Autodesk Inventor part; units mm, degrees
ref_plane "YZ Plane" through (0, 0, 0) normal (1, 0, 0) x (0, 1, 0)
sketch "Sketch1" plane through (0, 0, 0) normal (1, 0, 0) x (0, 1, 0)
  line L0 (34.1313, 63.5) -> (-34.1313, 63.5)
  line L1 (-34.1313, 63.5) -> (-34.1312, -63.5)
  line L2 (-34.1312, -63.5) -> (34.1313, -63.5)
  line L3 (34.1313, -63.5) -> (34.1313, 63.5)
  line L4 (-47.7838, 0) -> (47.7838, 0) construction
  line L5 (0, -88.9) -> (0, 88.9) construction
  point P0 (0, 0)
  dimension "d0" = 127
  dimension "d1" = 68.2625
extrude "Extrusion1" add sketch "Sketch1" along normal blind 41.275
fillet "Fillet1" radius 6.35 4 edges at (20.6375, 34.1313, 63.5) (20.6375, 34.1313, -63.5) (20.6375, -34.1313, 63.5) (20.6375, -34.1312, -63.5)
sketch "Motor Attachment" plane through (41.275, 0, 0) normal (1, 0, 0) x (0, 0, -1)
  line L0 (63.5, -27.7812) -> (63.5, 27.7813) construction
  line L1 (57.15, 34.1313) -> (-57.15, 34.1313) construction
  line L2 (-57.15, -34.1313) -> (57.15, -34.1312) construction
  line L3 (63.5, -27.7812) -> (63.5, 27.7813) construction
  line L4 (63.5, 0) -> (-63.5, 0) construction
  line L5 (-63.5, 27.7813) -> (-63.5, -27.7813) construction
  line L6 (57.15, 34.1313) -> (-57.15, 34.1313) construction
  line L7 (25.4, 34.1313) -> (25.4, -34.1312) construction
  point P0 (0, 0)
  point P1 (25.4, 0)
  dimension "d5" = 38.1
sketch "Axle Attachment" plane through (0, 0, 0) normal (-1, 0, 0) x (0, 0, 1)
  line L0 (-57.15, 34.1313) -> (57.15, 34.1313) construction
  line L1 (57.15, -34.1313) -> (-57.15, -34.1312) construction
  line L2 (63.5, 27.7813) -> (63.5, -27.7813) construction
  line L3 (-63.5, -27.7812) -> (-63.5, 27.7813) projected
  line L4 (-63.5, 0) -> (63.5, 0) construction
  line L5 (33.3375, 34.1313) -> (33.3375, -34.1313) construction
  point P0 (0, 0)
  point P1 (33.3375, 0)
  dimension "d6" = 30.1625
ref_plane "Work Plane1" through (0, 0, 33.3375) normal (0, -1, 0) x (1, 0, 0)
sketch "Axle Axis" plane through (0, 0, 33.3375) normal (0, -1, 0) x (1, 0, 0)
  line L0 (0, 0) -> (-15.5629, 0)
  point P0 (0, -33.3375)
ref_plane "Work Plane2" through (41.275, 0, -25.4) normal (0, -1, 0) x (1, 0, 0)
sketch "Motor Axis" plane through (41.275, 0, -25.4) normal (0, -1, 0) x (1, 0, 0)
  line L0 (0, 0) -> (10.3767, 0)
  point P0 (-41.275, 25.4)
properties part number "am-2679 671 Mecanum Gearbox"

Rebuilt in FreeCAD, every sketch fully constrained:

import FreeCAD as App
import Part
import Sketcher

V = App.Vector
Q = App.Units.Quantity


def edges_at(feature, points):
    """Names of the edges that pass closest to the given points."""
    edges = feature.Shape.Edges
    near = lambda p: min(range(len(edges)), key=lambda i: edges[i].distToShape(Part.Vertex(*p))[0])
    return sorted({f"Edge{near(p) + 1}" for p in points})

doc = App.newDocument("Part")
body = doc.addObject("PartDesign::Body", "Body")

sketch1 = doc.addObject("Sketcher::SketchObject", "Sketch")
body.addObject(sketch1)
sketch1.AttachmentSupport = (doc.YZ_Plane, [""])
sketch1.MapMode = "FlatFace"
sketch1.addGeometry(Part.LineSegment(V(34, -64, 0), V(34, 64, 0)), False)
sketch1.addGeometry(Part.LineSegment(V(34, 64, 0), V(-34, 64, 0)), False)
sketch1.addGeometry(Part.LineSegment(V(-34, 64, 0), V(-34, -64, 0)), False)
sketch1.addGeometry(Part.LineSegment(V(-34, -64, 0), V(34, -64, 0)), False)
sketch1.addConstraint(Sketcher.Constraint("Coincident", 0, 2, 1, 1))
sketch1.addConstraint(Sketcher.Constraint("Coincident", 1, 2, 2, 1))
sketch1.addConstraint(Sketcher.Constraint("Coincident", 2, 2, 3, 1))
sketch1.addConstraint(Sketcher.Constraint("Coincident", 3, 2, 0, 1))
sketch1.addConstraint(Sketcher.Constraint("Vertical", 0))
sketch1.addConstraint(Sketcher.Constraint("Horizontal", 1))
sketch1.addConstraint(Sketcher.Constraint("Vertical", 2))
sketch1.addConstraint(Sketcher.Constraint("Horizontal", 3))
sketch1.addConstraint(Sketcher.Constraint("Symmetric", 0, 2, 2, 2, -1, 1))
sketch1.addConstraint(Sketcher.Constraint("DistanceY", 0, 1, 0, 2, Q("5 in")))
sketch1.addConstraint(Sketcher.Constraint("DistanceX", 1, 2, 1, 1, Q("2.6875 in")))
pad1 = doc.addObject("PartDesign::Pad", "Pad")
body.addObject(pad1)
pad1.Profile = sketch1
pad1.Length = Q("1.625 in")
doc.recompute()

fillet = doc.addObject("PartDesign::Fillet", "Fillet")
body.addObject(fillet)
fillet.Base = (pad1, edges_at(pad1, [
    (20.637, 34.131, 63.5),
    (20.637, 34.131, -63.5),
    (20.637, -34.131, 63.5),
    (20.637, -34.131, -63.5),
]))
fillet.Radius = Q("0.25 in")

doc.recompute()
